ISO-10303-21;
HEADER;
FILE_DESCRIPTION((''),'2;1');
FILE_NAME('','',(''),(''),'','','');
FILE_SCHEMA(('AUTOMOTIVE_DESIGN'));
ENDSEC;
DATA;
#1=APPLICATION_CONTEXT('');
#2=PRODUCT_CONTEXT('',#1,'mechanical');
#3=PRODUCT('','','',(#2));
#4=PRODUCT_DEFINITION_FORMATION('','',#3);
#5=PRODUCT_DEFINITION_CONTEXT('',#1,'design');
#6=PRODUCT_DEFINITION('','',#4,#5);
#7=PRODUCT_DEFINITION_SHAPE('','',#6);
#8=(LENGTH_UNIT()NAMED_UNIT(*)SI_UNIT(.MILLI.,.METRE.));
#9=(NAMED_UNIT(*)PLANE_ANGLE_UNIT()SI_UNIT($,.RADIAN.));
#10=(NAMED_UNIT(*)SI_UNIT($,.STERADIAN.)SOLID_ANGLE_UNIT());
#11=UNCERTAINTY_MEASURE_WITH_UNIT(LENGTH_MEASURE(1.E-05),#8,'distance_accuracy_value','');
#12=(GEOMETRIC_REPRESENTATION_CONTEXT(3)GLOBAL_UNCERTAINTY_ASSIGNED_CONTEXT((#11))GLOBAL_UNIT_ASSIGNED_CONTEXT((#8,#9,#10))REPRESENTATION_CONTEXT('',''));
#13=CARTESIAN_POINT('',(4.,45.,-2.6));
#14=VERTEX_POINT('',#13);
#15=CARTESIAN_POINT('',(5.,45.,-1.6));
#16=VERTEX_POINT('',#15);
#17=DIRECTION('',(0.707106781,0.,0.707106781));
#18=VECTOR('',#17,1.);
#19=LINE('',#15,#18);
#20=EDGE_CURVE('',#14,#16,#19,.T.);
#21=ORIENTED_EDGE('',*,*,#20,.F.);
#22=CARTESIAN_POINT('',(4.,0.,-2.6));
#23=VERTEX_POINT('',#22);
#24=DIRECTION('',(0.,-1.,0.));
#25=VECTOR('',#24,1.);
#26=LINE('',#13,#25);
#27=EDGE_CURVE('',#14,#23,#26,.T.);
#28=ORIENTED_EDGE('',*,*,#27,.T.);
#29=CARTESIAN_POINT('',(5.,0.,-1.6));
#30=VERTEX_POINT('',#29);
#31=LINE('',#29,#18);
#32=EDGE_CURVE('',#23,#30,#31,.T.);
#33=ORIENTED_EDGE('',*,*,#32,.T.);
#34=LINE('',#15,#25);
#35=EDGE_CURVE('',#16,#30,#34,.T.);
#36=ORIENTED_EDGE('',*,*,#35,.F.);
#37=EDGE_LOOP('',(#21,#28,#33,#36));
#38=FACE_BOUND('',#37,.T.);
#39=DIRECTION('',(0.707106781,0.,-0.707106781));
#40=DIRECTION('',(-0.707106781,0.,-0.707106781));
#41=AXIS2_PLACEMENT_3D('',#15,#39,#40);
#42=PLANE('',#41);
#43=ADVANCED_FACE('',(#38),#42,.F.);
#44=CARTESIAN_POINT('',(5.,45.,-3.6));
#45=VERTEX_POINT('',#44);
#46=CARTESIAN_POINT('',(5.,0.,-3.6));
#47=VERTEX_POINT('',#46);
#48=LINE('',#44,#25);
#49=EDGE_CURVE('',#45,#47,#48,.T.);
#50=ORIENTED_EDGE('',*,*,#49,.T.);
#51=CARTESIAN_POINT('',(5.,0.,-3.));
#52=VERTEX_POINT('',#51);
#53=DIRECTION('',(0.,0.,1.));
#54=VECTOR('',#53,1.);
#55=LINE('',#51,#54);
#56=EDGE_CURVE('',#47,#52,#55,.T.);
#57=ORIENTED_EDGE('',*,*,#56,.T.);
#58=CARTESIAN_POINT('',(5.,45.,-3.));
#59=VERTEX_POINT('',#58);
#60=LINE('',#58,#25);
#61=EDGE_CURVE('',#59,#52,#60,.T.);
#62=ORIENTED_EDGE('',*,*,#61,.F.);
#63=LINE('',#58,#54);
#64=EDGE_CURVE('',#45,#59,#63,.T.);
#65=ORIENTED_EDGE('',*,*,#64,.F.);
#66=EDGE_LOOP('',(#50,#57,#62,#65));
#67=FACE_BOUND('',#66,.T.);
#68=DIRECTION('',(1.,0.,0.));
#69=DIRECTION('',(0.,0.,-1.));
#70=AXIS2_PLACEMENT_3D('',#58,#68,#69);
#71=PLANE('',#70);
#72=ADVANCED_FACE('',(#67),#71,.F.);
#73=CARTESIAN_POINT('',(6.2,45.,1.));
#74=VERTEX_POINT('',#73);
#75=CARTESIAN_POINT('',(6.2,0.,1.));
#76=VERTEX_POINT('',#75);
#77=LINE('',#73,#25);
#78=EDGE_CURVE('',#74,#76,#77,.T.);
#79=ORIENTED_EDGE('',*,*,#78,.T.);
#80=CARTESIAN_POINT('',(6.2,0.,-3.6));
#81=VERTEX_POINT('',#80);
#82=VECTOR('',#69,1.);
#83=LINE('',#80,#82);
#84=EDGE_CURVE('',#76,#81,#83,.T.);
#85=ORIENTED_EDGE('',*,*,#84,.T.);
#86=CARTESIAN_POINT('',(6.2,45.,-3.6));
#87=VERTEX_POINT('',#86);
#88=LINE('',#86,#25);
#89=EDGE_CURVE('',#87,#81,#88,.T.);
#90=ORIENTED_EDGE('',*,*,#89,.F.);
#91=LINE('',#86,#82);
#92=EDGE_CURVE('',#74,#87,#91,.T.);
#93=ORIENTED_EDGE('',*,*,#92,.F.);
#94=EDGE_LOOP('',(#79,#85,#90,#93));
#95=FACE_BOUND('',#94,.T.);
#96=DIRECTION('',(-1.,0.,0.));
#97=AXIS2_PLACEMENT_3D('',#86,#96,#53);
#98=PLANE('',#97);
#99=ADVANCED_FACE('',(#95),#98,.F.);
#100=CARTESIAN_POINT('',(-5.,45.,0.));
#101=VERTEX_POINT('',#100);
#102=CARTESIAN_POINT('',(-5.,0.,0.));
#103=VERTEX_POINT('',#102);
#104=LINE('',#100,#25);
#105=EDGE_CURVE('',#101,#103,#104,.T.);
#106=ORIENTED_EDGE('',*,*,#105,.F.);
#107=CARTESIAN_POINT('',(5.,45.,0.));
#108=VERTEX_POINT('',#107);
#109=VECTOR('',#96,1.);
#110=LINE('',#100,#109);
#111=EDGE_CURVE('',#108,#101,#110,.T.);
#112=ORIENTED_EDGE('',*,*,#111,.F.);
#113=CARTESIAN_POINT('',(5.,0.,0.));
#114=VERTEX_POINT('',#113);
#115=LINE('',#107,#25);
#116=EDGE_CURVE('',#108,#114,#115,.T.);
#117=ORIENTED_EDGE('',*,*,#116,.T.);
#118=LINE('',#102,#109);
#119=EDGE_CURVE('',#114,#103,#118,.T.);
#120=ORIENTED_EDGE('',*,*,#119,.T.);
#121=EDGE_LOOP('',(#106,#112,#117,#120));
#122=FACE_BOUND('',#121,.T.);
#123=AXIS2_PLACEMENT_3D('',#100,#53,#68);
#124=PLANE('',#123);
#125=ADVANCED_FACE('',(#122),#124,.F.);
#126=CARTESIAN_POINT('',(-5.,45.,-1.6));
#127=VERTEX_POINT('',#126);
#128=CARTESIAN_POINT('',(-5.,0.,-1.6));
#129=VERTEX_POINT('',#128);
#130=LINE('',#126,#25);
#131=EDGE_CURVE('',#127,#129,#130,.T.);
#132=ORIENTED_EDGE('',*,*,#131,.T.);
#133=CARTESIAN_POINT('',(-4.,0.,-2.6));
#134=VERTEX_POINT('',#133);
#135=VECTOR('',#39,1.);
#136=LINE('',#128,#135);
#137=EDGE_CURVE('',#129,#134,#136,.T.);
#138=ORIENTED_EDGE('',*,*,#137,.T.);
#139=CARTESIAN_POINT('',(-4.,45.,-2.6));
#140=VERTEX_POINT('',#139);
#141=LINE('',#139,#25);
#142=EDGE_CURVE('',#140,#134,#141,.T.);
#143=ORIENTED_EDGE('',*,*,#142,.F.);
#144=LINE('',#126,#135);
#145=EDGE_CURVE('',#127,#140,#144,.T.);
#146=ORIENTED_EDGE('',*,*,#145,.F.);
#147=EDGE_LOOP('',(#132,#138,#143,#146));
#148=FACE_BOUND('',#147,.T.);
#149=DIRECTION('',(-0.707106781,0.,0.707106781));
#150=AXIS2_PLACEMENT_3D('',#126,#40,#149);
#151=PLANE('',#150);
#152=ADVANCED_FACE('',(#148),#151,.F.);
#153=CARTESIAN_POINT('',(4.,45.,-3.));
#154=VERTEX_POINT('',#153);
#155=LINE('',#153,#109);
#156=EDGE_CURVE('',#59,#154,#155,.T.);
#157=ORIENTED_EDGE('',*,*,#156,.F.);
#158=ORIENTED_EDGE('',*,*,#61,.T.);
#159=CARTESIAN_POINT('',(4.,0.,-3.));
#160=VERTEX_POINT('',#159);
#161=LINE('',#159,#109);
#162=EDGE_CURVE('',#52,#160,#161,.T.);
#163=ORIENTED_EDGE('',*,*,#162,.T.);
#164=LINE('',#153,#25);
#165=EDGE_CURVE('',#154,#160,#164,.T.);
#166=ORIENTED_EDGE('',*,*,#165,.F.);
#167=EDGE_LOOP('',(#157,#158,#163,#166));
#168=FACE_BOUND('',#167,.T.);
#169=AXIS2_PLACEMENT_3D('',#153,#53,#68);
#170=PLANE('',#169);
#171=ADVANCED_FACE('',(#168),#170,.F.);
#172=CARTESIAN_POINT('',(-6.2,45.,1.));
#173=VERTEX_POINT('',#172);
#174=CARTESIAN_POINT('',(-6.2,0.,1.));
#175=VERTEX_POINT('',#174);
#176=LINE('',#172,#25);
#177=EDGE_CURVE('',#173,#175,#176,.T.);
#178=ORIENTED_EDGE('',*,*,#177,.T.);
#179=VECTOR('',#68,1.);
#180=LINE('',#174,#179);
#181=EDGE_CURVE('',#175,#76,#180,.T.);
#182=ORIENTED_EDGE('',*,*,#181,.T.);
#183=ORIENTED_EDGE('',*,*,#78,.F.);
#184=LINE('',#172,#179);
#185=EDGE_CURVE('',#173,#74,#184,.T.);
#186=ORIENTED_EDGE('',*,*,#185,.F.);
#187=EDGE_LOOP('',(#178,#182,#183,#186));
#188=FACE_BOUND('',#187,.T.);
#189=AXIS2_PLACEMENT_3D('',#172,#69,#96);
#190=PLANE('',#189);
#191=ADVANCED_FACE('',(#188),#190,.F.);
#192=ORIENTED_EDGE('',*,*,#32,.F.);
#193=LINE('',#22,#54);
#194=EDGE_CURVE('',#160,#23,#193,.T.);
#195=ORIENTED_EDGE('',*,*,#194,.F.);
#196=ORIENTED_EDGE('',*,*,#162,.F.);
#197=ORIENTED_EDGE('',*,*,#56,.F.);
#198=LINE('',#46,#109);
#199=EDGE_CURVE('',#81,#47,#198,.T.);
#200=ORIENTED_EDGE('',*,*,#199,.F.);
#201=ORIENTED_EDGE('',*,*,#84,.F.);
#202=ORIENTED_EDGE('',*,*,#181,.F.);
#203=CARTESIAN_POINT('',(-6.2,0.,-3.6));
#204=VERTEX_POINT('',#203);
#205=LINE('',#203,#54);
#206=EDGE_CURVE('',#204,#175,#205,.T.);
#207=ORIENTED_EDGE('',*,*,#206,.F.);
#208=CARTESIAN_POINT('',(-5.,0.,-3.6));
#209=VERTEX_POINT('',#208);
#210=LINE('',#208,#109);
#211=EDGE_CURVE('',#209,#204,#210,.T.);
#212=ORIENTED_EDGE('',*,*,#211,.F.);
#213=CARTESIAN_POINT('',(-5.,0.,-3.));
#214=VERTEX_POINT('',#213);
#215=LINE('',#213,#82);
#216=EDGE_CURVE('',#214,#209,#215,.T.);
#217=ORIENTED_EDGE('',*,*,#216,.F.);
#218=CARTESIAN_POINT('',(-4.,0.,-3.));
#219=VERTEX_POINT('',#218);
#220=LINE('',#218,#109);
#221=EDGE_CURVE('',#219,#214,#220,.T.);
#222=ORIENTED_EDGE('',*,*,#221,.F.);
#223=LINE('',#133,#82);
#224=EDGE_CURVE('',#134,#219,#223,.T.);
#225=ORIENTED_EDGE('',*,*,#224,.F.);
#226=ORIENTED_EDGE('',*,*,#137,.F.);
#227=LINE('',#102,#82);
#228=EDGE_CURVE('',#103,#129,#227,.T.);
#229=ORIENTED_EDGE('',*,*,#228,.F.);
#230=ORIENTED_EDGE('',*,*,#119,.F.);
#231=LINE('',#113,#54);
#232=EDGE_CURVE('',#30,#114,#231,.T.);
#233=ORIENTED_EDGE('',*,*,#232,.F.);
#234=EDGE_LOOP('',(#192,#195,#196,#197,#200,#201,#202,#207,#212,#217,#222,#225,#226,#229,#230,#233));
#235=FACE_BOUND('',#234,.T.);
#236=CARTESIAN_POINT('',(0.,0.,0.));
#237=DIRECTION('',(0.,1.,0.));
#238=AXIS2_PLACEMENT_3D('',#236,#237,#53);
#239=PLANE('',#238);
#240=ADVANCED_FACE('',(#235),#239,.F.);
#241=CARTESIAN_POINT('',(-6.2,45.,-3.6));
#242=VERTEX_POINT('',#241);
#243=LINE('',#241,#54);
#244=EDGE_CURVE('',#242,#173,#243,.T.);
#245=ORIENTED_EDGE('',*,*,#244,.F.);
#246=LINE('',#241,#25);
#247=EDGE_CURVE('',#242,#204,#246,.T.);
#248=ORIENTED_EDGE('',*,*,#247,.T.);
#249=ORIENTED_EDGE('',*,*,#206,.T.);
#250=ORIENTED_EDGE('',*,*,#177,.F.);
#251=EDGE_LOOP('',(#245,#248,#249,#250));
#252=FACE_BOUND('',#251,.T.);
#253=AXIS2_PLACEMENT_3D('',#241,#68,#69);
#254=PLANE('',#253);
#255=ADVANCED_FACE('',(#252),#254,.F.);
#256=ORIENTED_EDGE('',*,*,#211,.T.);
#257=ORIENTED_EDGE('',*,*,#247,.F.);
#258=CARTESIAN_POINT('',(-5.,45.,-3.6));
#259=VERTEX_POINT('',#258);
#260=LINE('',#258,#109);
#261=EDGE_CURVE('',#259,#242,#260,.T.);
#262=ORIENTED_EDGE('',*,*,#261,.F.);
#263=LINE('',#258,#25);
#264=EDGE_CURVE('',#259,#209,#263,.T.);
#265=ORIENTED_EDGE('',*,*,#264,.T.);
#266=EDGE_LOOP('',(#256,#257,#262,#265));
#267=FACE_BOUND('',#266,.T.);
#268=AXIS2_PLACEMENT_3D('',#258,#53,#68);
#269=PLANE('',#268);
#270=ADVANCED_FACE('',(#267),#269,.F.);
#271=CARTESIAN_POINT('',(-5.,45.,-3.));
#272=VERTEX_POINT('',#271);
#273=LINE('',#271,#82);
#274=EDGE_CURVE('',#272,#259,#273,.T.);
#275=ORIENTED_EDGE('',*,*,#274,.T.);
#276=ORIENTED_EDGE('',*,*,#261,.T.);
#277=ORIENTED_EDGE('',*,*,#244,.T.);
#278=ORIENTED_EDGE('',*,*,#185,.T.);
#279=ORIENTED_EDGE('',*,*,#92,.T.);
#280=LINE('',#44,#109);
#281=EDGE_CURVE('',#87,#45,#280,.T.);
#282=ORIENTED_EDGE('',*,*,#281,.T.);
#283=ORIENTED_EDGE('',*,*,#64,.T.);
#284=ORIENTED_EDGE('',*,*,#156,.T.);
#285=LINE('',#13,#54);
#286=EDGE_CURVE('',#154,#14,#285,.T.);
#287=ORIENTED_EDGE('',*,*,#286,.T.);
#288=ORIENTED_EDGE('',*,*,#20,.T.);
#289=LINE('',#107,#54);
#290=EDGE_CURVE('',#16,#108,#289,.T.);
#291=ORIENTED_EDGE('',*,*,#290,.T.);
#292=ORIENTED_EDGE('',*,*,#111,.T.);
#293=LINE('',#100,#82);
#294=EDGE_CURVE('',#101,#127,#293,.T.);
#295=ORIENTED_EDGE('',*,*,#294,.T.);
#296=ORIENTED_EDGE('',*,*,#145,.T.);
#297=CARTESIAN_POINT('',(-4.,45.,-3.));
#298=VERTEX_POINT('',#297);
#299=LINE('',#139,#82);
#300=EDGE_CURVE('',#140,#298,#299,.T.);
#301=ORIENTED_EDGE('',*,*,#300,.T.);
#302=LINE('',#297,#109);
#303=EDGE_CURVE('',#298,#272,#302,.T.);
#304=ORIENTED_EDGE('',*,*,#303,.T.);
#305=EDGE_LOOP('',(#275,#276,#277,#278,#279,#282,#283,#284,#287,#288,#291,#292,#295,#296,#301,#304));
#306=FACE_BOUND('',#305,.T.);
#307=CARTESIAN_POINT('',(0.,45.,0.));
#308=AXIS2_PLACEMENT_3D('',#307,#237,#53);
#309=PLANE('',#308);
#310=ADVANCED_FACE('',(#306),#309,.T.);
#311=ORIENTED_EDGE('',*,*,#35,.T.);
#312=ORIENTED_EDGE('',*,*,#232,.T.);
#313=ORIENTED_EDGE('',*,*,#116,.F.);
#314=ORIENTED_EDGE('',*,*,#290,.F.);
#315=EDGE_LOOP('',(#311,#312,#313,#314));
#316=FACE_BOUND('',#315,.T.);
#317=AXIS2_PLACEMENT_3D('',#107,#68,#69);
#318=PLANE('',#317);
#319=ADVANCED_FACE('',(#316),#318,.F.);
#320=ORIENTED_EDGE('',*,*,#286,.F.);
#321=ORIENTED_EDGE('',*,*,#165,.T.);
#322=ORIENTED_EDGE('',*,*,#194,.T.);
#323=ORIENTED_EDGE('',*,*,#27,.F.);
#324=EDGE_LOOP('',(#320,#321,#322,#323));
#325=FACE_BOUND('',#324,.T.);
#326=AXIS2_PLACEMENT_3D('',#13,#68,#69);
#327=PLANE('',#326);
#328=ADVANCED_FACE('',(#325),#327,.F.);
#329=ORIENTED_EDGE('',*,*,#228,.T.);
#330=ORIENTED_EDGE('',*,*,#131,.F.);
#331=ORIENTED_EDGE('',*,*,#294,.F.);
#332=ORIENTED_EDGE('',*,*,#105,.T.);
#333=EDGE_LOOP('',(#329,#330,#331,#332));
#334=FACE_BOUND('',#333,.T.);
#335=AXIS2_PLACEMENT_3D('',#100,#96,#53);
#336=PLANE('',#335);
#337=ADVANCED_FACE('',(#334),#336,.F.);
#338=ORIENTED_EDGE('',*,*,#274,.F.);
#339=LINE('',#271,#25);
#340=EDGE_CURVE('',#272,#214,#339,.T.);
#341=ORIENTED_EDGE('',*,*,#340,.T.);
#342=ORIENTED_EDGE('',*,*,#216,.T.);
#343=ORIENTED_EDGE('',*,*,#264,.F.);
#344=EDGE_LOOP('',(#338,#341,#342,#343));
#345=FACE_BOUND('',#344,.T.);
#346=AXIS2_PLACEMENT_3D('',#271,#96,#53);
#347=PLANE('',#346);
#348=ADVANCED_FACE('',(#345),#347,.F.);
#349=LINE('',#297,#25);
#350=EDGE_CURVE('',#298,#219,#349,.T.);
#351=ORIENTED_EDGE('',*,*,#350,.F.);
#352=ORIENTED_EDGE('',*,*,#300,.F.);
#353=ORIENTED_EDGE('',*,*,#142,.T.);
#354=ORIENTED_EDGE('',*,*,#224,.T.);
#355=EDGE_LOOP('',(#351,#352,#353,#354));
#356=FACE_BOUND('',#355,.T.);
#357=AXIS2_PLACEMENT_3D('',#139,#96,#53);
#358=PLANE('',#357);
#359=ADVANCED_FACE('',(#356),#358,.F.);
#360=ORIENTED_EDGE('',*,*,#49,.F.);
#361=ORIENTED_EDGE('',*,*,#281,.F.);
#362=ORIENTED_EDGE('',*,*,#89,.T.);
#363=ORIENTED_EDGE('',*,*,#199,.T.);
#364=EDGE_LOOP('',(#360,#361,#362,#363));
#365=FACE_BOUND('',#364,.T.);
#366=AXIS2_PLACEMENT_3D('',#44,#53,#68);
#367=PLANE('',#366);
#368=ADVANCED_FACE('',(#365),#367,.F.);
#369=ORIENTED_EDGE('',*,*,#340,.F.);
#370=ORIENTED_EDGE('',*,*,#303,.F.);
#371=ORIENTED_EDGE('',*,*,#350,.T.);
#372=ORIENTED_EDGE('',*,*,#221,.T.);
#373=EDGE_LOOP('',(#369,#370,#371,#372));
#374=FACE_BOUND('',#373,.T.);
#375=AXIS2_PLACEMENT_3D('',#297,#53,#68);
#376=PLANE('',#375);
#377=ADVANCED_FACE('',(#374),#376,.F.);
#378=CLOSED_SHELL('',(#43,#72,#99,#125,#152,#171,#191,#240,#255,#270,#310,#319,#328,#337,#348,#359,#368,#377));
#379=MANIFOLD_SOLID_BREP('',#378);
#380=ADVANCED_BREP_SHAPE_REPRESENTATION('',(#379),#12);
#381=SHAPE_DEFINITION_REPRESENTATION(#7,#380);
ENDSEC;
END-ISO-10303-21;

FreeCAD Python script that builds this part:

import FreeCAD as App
import Part
import Sketcher
from FreeCAD import Vector
Q = App.Units.Quantity

doc = App.newDocument("Part")
body = doc.addObject("PartDesign::Body", "Body")

sketch1 = body.newObject("Sketcher::SketchObject", "Sketch")
sketch1.AttachmentSupport = (doc.getObject("XZ_Plane"), [""])
sketch1.MapMode = "FlatFace"
sketch1.addGeometry([
    Part.LineSegment(Vector(5, 0, 0), Vector(-5, 0, 0)),
    Part.LineSegment(Vector(-5, 0, 0), Vector(-5, -1.6, 0)),
    Part.LineSegment(Vector(-5, -1.6, 0), Vector(-4, -2.6, 0)),
    Part.LineSegment(Vector(-4, -2.6, 0), Vector(-4, -3, 0)),
    Part.LineSegment(Vector(-4, -3, 0), Vector(-5, -3, 0)),
    Part.LineSegment(Vector(-5, -3, 0), Vector(-5, -3.6, 0)),
    Part.LineSegment(Vector(-5, -3.6, 0), Vector(-6.2, -3.6, 0)),
    Part.LineSegment(Vector(-6.2, -3.6, 0), Vector(-6.2, 1, 0)),
    Part.LineSegment(Vector(-6.2, 1, 0), Vector(6.2, 1, 0)),
    Part.LineSegment(Vector(6.2, 1, 0), Vector(6.2, -3.6, 0)),
    Part.LineSegment(Vector(6.2, -3.6, 0), Vector(5, -3.6, 0)),
    Part.LineSegment(Vector(5, -3.6, 0), Vector(5, -3, 0)),
    Part.LineSegment(Vector(5, -3, 0), Vector(4, -3, 0)),
    Part.LineSegment(Vector(4, -3, 0), Vector(4, -2.6, 0)),
    Part.LineSegment(Vector(4, -2.6, 0), Vector(5, -1.6, 0)),
    Part.LineSegment(Vector(5, -1.6, 0), Vector(5, 0, 0)),
], False)
sketch1.addConstraint([
    Sketcher.Constraint("Coincident", 0, 2, 1, 1),
    Sketcher.Constraint("Coincident", 1, 2, 2, 1),
    Sketcher.Constraint("Coincident", 2, 2, 3, 1),
    Sketcher.Constraint("Coincident", 3, 2, 4, 1),
    Sketcher.Constraint("Coincident", 4, 2, 5, 1),
    Sketcher.Constraint("Coincident", 5, 2, 6, 1),
    Sketcher.Constraint("Coincident", 6, 2, 7, 1),
    Sketcher.Constraint("Coincident", 7, 2, 8, 1),
    Sketcher.Constraint("Coincident", 8, 2, 9, 1),
    Sketcher.Constraint("Coincident", 9, 2, 10, 1),
    Sketcher.Constraint("Coincident", 10, 2, 11, 1),
    Sketcher.Constraint("Coincident", 11, 2, 12, 1),
    Sketcher.Constraint("Coincident", 12, 2, 13, 1),
    Sketcher.Constraint("Coincident", 13, 2, 14, 1),
    Sketcher.Constraint("Coincident", 14, 2, 15, 1),
    Sketcher.Constraint("Coincident", 15, 2, 0, 1),
    Sketcher.Constraint("Horizontal", 0),
    Sketcher.Constraint("Vertical", 1),
    Sketcher.Constraint("Vertical", 3),
    Sketcher.Constraint("Horizontal", 4),
    Sketcher.Constraint("Vertical", 5),
    Sketcher.Constraint("Horizontal", 6),
    Sketcher.Constraint("Vertical", 7),
    Sketcher.Constraint("Horizontal", 8),
    Sketcher.Constraint("Vertical", 9),
    Sketcher.Constraint("Horizontal", 10),
    Sketcher.Constraint("Vertical", 11),
    Sketcher.Constraint("Horizontal", 12),
    Sketcher.Constraint("Vertical", 13),
    Sketcher.Constraint("Vertical", 15),
    Sketcher.Constraint("Symmetric", 0, 2, 15, 2, -1, 1),
    Sketcher.Constraint("Symmetric", 6, 2, 9, 2, -2),
    Sketcher.Constraint("Symmetric", 4, 2, 11, 2, -2),
    Sketcher.Constraint("Symmetric", 2, 2, 13, 2, -2),
    Sketcher.Constraint("Perpendicular", 2, 14),
    Sketcher.Constraint("Horizontal", 1, 2, 14, 2),
    Sketcher.Constraint("Vertical", 1, 2, 4, 2),
    Sketcher.Constraint("DistanceX", 0, 2, 0, 1, Q("10 mm")),
    Sketcher.Constraint("DistanceX", 4, 2, 4, 1, Q("1 mm")),
    Sketcher.Constraint("DistanceX", 6, 2, 6, 1, Q("1.2 mm")),
    Sketcher.Constraint("DistanceY", 1, 2, 1, 1, Q("1.6 mm")),
    Sketcher.Constraint("DistanceY", 3, 2, 3, 1, Q("0.4 mm")),
    Sketcher.Constraint("DistanceY", 5, 2, 5, 1, Q("0.6 mm")),
    Sketcher.Constraint("DistanceY", 7, 1, 7, 2, Q("4.6 mm")),
])
pad1 = body.newObject("PartDesign::Pad", "Pad")
pad1.Profile = sketch1
pad1.Length = 45
pad1.Reversed = True

doc.recompute()
